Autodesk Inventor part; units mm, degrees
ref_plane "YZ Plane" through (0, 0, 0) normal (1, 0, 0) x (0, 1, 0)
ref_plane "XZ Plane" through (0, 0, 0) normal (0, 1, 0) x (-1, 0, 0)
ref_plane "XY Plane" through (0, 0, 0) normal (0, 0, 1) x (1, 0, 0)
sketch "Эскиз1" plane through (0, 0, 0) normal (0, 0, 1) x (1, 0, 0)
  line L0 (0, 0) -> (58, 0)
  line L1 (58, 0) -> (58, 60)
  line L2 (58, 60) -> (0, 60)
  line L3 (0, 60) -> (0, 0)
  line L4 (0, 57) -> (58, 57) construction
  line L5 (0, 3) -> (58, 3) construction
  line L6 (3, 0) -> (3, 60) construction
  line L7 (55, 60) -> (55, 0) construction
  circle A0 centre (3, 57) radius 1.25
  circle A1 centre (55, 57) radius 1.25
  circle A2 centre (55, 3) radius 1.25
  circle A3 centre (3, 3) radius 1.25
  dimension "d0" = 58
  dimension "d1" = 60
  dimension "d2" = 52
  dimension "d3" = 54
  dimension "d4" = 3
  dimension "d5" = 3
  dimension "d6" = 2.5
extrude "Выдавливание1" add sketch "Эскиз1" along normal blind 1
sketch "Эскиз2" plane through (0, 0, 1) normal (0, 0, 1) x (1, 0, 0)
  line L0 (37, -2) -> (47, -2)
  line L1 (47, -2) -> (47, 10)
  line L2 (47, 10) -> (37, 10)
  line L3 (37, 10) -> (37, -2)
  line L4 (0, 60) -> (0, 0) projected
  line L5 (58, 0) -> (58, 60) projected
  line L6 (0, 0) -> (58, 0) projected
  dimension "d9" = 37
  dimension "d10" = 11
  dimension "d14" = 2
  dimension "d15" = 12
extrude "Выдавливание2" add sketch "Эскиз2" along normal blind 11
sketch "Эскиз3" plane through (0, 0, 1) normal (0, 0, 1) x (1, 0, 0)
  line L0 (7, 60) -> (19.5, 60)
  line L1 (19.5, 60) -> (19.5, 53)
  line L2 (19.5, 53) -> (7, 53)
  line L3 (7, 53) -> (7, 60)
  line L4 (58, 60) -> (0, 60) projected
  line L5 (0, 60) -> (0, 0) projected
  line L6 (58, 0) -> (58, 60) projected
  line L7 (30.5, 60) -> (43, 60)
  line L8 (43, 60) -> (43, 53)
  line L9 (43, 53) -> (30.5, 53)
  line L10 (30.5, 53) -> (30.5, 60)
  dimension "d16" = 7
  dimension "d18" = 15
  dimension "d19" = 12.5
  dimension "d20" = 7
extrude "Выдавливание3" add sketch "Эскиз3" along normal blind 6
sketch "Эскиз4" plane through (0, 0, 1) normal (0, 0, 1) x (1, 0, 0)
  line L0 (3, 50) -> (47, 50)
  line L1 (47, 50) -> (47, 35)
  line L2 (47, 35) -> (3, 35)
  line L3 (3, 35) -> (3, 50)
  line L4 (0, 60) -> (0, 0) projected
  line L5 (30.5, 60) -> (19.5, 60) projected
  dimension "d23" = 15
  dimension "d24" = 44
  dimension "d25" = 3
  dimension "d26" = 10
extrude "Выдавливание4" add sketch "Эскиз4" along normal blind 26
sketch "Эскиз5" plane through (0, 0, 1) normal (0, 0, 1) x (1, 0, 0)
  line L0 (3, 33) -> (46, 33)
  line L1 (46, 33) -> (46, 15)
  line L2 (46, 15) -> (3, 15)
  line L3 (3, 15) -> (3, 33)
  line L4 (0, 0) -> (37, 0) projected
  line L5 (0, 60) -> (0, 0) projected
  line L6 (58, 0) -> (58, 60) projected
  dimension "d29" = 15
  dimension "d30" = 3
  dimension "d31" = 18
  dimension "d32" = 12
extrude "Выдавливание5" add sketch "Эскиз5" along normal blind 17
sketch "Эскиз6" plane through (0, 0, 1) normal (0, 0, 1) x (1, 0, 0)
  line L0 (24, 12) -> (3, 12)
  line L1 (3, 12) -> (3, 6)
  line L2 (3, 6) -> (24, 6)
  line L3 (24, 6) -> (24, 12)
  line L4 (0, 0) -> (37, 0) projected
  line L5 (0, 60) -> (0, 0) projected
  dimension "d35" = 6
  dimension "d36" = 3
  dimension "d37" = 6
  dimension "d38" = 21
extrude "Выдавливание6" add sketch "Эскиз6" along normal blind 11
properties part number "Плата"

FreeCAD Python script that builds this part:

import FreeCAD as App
import Part
import Sketcher


def add_polygon(sketch, points):
    """Adds a closed chain of lines whose ends are joined by coincident constraints."""
    first, n = sketch.GeometryCount, len(points)
    for a, b in zip(points, points[1:] + points[:1]):
        sketch.addGeometry(Part.LineSegment(App.Vector(*a, 0), App.Vector(*b, 0)), False)
    for i in range(n):
        sketch.addConstraint(Sketcher.Constraint("Coincident", first + i, 2, first + (i + 1) % n, 1))

doc = App.newDocument("Part")
body = doc.addObject("PartDesign::Body", "Body")

# Sketch on XY plane
sketch1 = doc.addObject("Sketcher::SketchObject", "Sketch")
body.addObject(sketch1)
sketch1.AttachmentSupport = (doc.XY_Plane, [""])
sketch1.MapMode = "FlatFace"
add_polygon(sketch1, [(0, 60), (0, 0), (58, 0), (58, 60)])  # lines 0-3
sketch1.addGeometry(Part.Circle(App.Vector(3, 3, 0), App.Vector(0, 0, 1), 1.2), False)  # 4
sketch1.addGeometry(Part.Circle(App.Vector(55, 3, 0), App.Vector(0, 0, 1), 1.2), False)  # 5
sketch1.addGeometry(Part.Circle(App.Vector(3, 57, 0), App.Vector(0, 0, 1), 1.2), False)  # 6
sketch1.addGeometry(Part.Circle(App.Vector(55, 57, 0), App.Vector(0, 0, 1), 1.2), False)  # 7
sketch1.addConstraint(Sketcher.Constraint("Vertical", 0))
sketch1.addConstraint(Sketcher.Constraint("Horizontal", 1))
sketch1.addConstraint(Sketcher.Constraint("Vertical", 2))
sketch1.addConstraint(Sketcher.Constraint("Horizontal", 3))
sketch1.addConstraint(Sketcher.Constraint("Coincident", 0, 2, -1, 1))
sketch1.addConstraint(Sketcher.Constraint("Equal", 4, 5))
sketch1.addConstraint(Sketcher.Constraint("Equal", 5, 6))
sketch1.addConstraint(Sketcher.Constraint("Equal", 6, 7))
sketch1.addConstraint(Sketcher.Constraint("Horizontal", 4, 3, 5, 3))
sketch1.addConstraint(Sketcher.Constraint("Horizontal", 6, 3, 7, 3))
sketch1.addConstraint(Sketcher.Constraint("Vertical", 4, 3, 6, 3))
sketch1.addConstraint(Sketcher.Constraint("Vertical", 5, 3, 7, 3))
sketch1.addConstraint(Sketcher.Constraint("Diameter", 4, 2.5))
sketch1.addConstraint(Sketcher.Constraint("DistanceX", 1, 1, 1, 2, 58.0))
sketch1.addConstraint(Sketcher.Constraint("DistanceY", 0, 2, 0, 1, 60.0))
sketch1.addConstraint(Sketcher.Constraint("DistanceX", -1, 1, 4, 3, 3.0))
sketch1.addConstraint(Sketcher.Constraint("DistanceY", -1, 1, 4, 3, 3.0))
sketch1.addConstraint(Sketcher.Constraint("DistanceX", 4, 3, 5, 3, 52.0))
sketch1.addConstraint(Sketcher.Constraint("DistanceY", 4, 3, 6, 3, 54.0))
pad1 = doc.addObject("PartDesign::Pad", "Pad")
body.addObject(pad1)
pad1.Profile = sketch1
pad1.Length = 1

# Sketch on XY plane
sketch2 = doc.addObject("Sketcher::SketchObject", "Sketch001")
body.addObject(sketch2)
sketch2.AttachmentSupport = (doc.XY_Plane, [""])
sketch2.MapMode = "FlatFace"
sketch2.AttachmentOffset = App.Placement(App.Vector(0, 0, 1), App.Rotation())
add_polygon(sketch2, [(37, -2), (47, -2), (47, 10), (37, 10)])  # lines 0-3
sketch2.addConstraint(Sketcher.Constraint("Horizontal", 0))
sketch2.addConstraint(Sketcher.Constraint("Vertical", 1))
sketch2.addConstraint(Sketcher.Constraint("Horizontal", 2))
sketch2.addConstraint(Sketcher.Constraint("Vertical", 3))
sketch2.addConstraint(Sketcher.Constraint("DistanceY", 1, 1, 1, 2, 12.0))
sketch2.addConstraint(Sketcher.Constraint("DistanceY", 0, 2, -1, 1, 2.0))
sketch2.addConstraint(Sketcher.Constraint("DistanceX", -1, 1, 2, 2, 37.0))
sketch2.addConstraint(Sketcher.Constraint("DistanceX", 0, 1, 0, 2, 10.0))
pad2 = doc.addObject("PartDesign::Pad", "Pad001")
body.addObject(pad2)
pad2.Profile = sketch2
pad2.Length = 11

# Sketch on XY plane
sketch3 = doc.addObject("Sketcher::SketchObject", "Sketch002")
body.addObject(sketch3)
sketch3.AttachmentSupport = (doc.XY_Plane, [""])
sketch3.MapMode = "FlatFace"
sketch3.AttachmentOffset = App.Placement(App.Vector(0, 0, 1), App.Rotation())
add_polygon(sketch3, [(43, 60), (30, 60), (30, 53), (43, 53)])  # lines 0-3
add_polygon(sketch3, [(20, 60), (7, 60), (7, 53), (20, 53)])  # lines 4-7
sketch3.addConstraint(Sketcher.Constraint("Horizontal", 0))
sketch3.addConstraint(Sketcher.Constraint("Vertical", 1))
sketch3.addConstraint(Sketcher.Constraint("Horizontal", 2))
sketch3.addConstraint(Sketcher.Constraint("Vertical", 3))
sketch3.addConstraint(Sketcher.Constraint("Horizontal", 4))
sketch3.addConstraint(Sketcher.Constraint("Vertical", 5))
sketch3.addConstraint(Sketcher.Constraint("Horizontal", 6))
sketch3.addConstraint(Sketcher.Constraint("Vertical", 7))
sketch3.addConstraint(Sketcher.Constraint("Horizontal", 3, 2, 4, 2))
sketch3.addConstraint(Sketcher.Constraint("Horizontal", 2, 2, 5, 2))
sketch3.addConstraint(Sketcher.Constraint("Equal", 2, 4))
sketch3.addConstraint(Sketcher.Constraint("DistanceY", 1, 2, 1, 1, 7.0))
sketch3.addConstraint(Sketcher.Constraint("DistanceX", 0, 2, 0, 1, 12.5))
sketch3.addConstraint(Sketcher.Constraint("DistanceX", -1, 1, 4, 2, 7.0))
sketch3.addConstraint(Sketcher.Constraint("DistanceY", -1, 1, 0, 2, 60.0))
sketch3.addConstraint(Sketcher.Constraint("DistanceX", -1, 1, 2, 2, 43.0))
pad3 = doc.addObject("PartDesign::Pad", "Pad002")
body.addObject(pad3)
pad3.Profile = sketch3
pad3.Length = 6

# Sketch on XY plane
sketch4 = doc.addObject("Sketcher::SketchObject", "Sketch003")
body.addObject(sketch4)
sketch4.AttachmentSupport = (doc.XY_Plane, [""])
sketch4.MapMode = "FlatFace"
sketch4.AttachmentOffset = App.Placement(App.Vector(0, 0, 1), App.Rotation())
add_polygon(sketch4, [(47, 50), (3, 50), (3, 35), (47, 35)])  # lines 0-3
sketch4.addConstraint(Sketcher.Constraint("Horizontal", 0))
sketch4.addConstraint(Sketcher.Constraint("Vertical", 1))
sketch4.addConstraint(Sketcher.Constraint("Horizontal", 2))
sketch4.addConstraint(Sketcher.Constraint("Vertical", 3))
sketch4.addConstraint(Sketcher.Constraint("DistanceX", 0, 2, 0, 1, 44.0))
sketch4.addConstraint(Sketcher.Constraint("DistanceY", 1, 2, 1, 1, 15.0))
sketch4.addConstraint(Sketcher.Constraint("DistanceX", -1, 1, 0, 2, 3.0))
sketch4.addConstraint(Sketcher.Constraint("DistanceY", -1, 1, 0, 2, 50.0))
pad4 = doc.addObject("PartDesign::Pad", "Pad003")
body.addObject(pad4)
pad4.Profile = sketch4
pad4.Length = 26

# Sketch on XY plane
sketch5 = doc.addObject("Sketcher::SketchObject", "Sketch004")
body.addObject(sketch5)
sketch5.AttachmentSupport = (doc.XY_Plane, [""])
sketch5.MapMode = "FlatFace"
sketch5.AttachmentOffset = App.Placement(App.Vector(0, 0, 1), App.Rotation())
add_polygon(sketch5, [(46, 33), (3, 33), (3, 15), (46, 15)])  # lines 0-3
sketch5.addConstraint(Sketcher.Constraint("Horizontal", 0))
sketch5.addConstraint(Sketcher.Constraint("Vertical", 1))
sketch5.addConstraint(Sketcher.Constraint("Horizontal", 2))
sketch5.addConstraint(Sketcher.Constraint("Vertical", 3))
sketch5.addConstraint(Sketcher.Constraint("DistanceY", 1, 2, 1, 1, 18.0))
sketch5.addConstraint(Sketcher.Constraint("DistanceX", -1, 1, 0, 2, 3.0))
sketch5.addConstraint(Sketcher.Constraint("DistanceY", -1, 1, 1, 2, 15.0))
sketch5.addConstraint(Sketcher.Constraint("DistanceX", 0, 2, 0, 1, 43.0))
pad5 = doc.addObject("PartDesign::Pad", "Pad004")
body.addObject(pad5)
pad5.Profile = sketch5
pad5.Length = 17

# Sketch on XY plane
sketch6 = doc.addObject("Sketcher::SketchObject", "Sketch005")
body.addObject(sketch6)
sketch6.AttachmentSupport = (doc.XY_Plane, [""])
sketch6.MapMode = "FlatFace"
sketch6.AttachmentOffset = App.Placement(App.Vector(0, 0, 1), App.Rotation())
add_polygon(sketch6, [(24, 6), (24, 12), (3, 12), (3, 6)])  # lines 0-3
sketch6.addConstraint(Sketcher.Constraint("Vertical", 0))
sketch6.addConstraint(Sketcher.Constraint("Horizontal", 1))
sketch6.addConstraint(Sketcher.Constraint("Vertical", 2))
sketch6.addConstraint(Sketcher.Constraint("Horizontal", 3))
sketch6.addConstraint(Sketcher.Constraint("DistanceX", 1, 2, 1, 1, 21.0))
sketch6.addConstraint(Sketcher.Constraint("DistanceY", 0, 1, 0, 2, 6.0))
sketch6.addConstraint(Sketcher.Constraint("DistanceX", -1, 1, 1, 2, 3.0))
sketch6.addConstraint(Sketcher.Constraint("DistanceY", -1, 1, 2, 2, 6.0))
pad6 = doc.addObject("PartDesign::Pad", "Pad005")
body.addObject(pad6)
pad6.Profile = sketch6
pad6.Length = 11

doc.recompute()
